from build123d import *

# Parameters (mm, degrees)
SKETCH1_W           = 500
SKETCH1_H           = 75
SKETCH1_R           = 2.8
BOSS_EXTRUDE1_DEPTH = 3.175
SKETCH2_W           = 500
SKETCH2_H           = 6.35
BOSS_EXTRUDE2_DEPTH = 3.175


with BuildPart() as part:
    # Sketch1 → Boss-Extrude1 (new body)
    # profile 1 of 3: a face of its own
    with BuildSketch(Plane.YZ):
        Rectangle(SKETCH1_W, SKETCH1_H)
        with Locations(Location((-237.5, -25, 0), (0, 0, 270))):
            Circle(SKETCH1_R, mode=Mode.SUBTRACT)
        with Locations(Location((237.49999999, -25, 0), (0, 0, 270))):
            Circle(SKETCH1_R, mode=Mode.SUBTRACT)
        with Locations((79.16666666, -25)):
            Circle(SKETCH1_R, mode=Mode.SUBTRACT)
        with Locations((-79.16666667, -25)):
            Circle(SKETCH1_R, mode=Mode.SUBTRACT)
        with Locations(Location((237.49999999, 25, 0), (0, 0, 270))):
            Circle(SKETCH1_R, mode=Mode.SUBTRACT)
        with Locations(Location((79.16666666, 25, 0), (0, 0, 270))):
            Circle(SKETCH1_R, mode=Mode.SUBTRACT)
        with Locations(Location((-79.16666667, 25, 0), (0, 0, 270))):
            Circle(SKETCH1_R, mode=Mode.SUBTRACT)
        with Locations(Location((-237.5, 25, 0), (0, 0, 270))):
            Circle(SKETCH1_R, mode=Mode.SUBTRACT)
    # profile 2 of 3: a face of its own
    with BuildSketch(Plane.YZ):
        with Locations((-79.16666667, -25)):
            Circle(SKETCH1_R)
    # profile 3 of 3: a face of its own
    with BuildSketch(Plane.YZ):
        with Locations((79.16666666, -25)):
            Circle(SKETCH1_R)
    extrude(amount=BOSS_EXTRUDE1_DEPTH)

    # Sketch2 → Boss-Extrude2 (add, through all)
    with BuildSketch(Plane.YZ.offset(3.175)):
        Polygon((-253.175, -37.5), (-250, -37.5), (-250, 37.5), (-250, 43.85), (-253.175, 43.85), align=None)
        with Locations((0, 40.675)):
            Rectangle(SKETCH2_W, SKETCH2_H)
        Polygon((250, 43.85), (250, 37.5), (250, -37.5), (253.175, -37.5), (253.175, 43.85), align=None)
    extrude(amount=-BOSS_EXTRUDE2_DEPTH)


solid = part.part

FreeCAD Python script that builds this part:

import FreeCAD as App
import Part
import Sketcher

V = App.Vector

doc = App.newDocument("Part")
body = doc.addObject("PartDesign::Body", "Body")

sketch1 = body.newObject("Sketcher::SketchObject", "Sketch")
sketch1.AttachmentSupport = (doc.getObject("YZ_Plane"), [""])
sketch1.MapMode = "FlatFace"
sketch1.addGeometry(Part.LineSegment(V(-250, 37.5, 0), V(-250, -37.5, 0)), False)
sketch1.addGeometry(Part.LineSegment(V(-250, -37.5, 0), V(250, -37.5, 0)), False)
sketch1.addGeometry(Part.LineSegment(V(250, -37.5, 0), V(250, 37.5, 0)), False)
sketch1.addGeometry(Part.LineSegment(V(250, 37.5, 0), V(-250, 37.5, 0)), False)
sketch1.addGeometry(Part.Circle(V(-237.5, -25, 0), V(0, 0, 1), 2.8), False)
sketch1.addGeometry(Part.Circle(V(237.5, -25, 0), V(0, 0, 1), 2.8), False)
sketch1.addGeometry(Part.Circle(V(-237.5, 25, 0), V(0, 0, 1), 2.8), False)
sketch1.addGeometry(Part.Circle(V(-79.2, 25, 0), V(0, 0, 1), 2.8), False)
sketch1.addGeometry(Part.Circle(V(79.2, 25, 0), V(0, 0, 1), 2.8), False)
sketch1.addGeometry(Part.Circle(V(237.5, 25, 0), V(0, 0, 1), 2.8), False)
sketch1.addConstraint(Sketcher.Constraint("Coincident", 0, 2, 1, 1))
sketch1.addConstraint(Sketcher.Constraint("Coincident", 1, 2, 2, 1))
sketch1.addConstraint(Sketcher.Constraint("Coincident", 2, 2, 3, 1))
sketch1.addConstraint(Sketcher.Constraint("Coincident", 3, 2, 0, 1))
sketch1.addConstraint(Sketcher.Constraint("Vertical", 0))
sketch1.addConstraint(Sketcher.Constraint("Horizontal", 1))
sketch1.addConstraint(Sketcher.Constraint("Vertical", 2))
sketch1.addConstraint(Sketcher.Constraint("Horizontal", 3))
sketch1.addConstraint(Sketcher.Constraint("Equal", 4, 5))
sketch1.addConstraint(Sketcher.Constraint("Equal", 5, 6))
sketch1.addConstraint(Sketcher.Constraint("Equal", 6, 7))
sketch1.addConstraint(Sketcher.Constraint("Equal", 7, 8))
sketch1.addConstraint(Sketcher.Constraint("Equal", 8, 9))
sketch1.addConstraint(Sketcher.Constraint("Symmetric", 5, 3, 6, 3, -1, 1))
sketch1.addConstraint(Sketcher.Constraint("Symmetric", 4, 3, 9, 3, -1, 1))
sketch1.addConstraint(Sketcher.Constraint("Symmetric", 0, 2, 2, 2, -1, 1))
sketch1.addConstraint(Sketcher.Constraint("Symmetric", 4, 3, 5, 3, -2))
sketch1.addConstraint(Sketcher.Constraint("Symmetric", 7, 3, 8, 3, -2))
sketch1.addConstraint(Sketcher.Constraint("Horizontal", 6, 3, 7, 3))
sketch1.addConstraint(Sketcher.Constraint("Diameter", 4, 5.6))
sketch1.addConstraint(Sketcher.Constraint("DistanceX", 1, 1, 1, 2, 500.0))
sketch1.addConstraint(Sketcher.Constraint("DistanceY", 0, 2, 0, 1, 75.0))
sketch1.addConstraint(Sketcher.Constraint("DistanceY", 4, 3, -1, 1, 25.0))
sketch1.addConstraint(Sketcher.Constraint("DistanceX", 4, 3, 5, 3, 475.0))
sketch1.addConstraint(Sketcher.Constraint("DistanceX", 7, 3, -1, 1, 79.166667))
pad1 = body.newObject("PartDesign::Pad", "Pad")
pad1.Profile = sketch1
pad1.Length = 3.175

sketch2 = body.newObject("Sketcher::SketchObject", "Sketch001")
sketch2.AttachmentSupport = (doc.getObject("YZ_Plane"), [""])
sketch2.MapMode = "FlatFace"
sketch2.AttachmentOffset = App.Placement(V(0, 0, 3.175), App.Rotation())
sketch2.addGeometry(Part.LineSegment(V(-253.2, -37.5, 0), V(-250, -37.5, 0)), False)
sketch2.addGeometry(Part.LineSegment(V(-250, -37.5, 0), V(-250, 37.5, 0)), False)
sketch2.addGeometry(Part.LineSegment(V(-250, 37.5, 0), V(250, 37.5, 0)), False)
sketch2.addGeometry(Part.LineSegment(V(250, 37.5, 0), V(250, -37.5, 0)), False)
sketch2.addGeometry(Part.LineSegment(V(250, -37.5, 0), V(253.2, -37.5, 0)), False)
sketch2.addGeometry(Part.LineSegment(V(253.2, -37.5, 0), V(253.2, 43.9, 0)), False)
sketch2.addGeometry(Part.LineSegment(V(253.2, 43.9, 0), V(-253.2, 43.9, 0)), False)
sketch2.addGeometry(Part.LineSegment(V(-253.2, 43.9, 0), V(-253.2, -37.5, 0)), False)
sketch2.addConstraint(Sketcher.Constraint("Coincident", 0, 2, 1, 1))
sketch2.addConstraint(Sketcher.Constraint("Coincident", 1, 2, 2, 1))
sketch2.addConstraint(Sketcher.Constraint("Coincident", 2, 2, 3, 1))
sketch2.addConstraint(Sketcher.Constraint("Coincident", 3, 2, 4, 1))
sketch2.addConstraint(Sketcher.Constraint("Coincident", 4, 2, 5, 1))
sketch2.addConstraint(Sketcher.Constraint("Coincident", 5, 2, 6, 1))
sketch2.addConstraint(Sketcher.Constraint("Coincident", 6, 2, 7, 1))
sketch2.addConstraint(Sketcher.Constraint("Coincident", 7, 2, 0, 1))
sketch2.addConstraint(Sketcher.Constraint("Horizontal", 0))
sketch2.addConstraint(Sketcher.Constraint("Vertical", 1))
sketch2.addConstraint(Sketcher.Constraint("Horizontal", 2))
sketch2.addConstraint(Sketcher.Constraint("Vertical", 3))
sketch2.addConstraint(Sketcher.Constraint("Horizontal", 4))
sketch2.addConstraint(Sketcher.Constraint("Vertical", 5))
sketch2.addConstraint(Sketcher.Constraint("Horizontal", 6))
sketch2.addConstraint(Sketcher.Constraint("Vertical", 7))
sketch2.addConstraint(Sketcher.Constraint("Symmetric", 0, 2, 2, 2, -1, 1))
sketch2.addConstraint(Sketcher.Constraint("Symmetric", 4, 2, 7, 2, -2))
sketch2.addConstraint(Sketcher.Constraint("DistanceX", 2, 1, 2, 2, 500.0))
sketch2.addConstraint(Sketcher.Constraint("DistanceY", 1, 1, 1, 2, 75.0))
sketch2.addConstraint(Sketcher.Constraint("DistanceX", 6, 2, 6, 1, 506.35))
sketch2.addConstraint(Sketcher.Constraint("DistanceY", 5, 1, 5, 2, 81.35))
pad2 = body.newObject("PartDesign::Pad", "Pad001")
pad2.Profile = sketch2
pad2.Type = "UpToLast"
pad2.Reversed = True

doc.recompute()
